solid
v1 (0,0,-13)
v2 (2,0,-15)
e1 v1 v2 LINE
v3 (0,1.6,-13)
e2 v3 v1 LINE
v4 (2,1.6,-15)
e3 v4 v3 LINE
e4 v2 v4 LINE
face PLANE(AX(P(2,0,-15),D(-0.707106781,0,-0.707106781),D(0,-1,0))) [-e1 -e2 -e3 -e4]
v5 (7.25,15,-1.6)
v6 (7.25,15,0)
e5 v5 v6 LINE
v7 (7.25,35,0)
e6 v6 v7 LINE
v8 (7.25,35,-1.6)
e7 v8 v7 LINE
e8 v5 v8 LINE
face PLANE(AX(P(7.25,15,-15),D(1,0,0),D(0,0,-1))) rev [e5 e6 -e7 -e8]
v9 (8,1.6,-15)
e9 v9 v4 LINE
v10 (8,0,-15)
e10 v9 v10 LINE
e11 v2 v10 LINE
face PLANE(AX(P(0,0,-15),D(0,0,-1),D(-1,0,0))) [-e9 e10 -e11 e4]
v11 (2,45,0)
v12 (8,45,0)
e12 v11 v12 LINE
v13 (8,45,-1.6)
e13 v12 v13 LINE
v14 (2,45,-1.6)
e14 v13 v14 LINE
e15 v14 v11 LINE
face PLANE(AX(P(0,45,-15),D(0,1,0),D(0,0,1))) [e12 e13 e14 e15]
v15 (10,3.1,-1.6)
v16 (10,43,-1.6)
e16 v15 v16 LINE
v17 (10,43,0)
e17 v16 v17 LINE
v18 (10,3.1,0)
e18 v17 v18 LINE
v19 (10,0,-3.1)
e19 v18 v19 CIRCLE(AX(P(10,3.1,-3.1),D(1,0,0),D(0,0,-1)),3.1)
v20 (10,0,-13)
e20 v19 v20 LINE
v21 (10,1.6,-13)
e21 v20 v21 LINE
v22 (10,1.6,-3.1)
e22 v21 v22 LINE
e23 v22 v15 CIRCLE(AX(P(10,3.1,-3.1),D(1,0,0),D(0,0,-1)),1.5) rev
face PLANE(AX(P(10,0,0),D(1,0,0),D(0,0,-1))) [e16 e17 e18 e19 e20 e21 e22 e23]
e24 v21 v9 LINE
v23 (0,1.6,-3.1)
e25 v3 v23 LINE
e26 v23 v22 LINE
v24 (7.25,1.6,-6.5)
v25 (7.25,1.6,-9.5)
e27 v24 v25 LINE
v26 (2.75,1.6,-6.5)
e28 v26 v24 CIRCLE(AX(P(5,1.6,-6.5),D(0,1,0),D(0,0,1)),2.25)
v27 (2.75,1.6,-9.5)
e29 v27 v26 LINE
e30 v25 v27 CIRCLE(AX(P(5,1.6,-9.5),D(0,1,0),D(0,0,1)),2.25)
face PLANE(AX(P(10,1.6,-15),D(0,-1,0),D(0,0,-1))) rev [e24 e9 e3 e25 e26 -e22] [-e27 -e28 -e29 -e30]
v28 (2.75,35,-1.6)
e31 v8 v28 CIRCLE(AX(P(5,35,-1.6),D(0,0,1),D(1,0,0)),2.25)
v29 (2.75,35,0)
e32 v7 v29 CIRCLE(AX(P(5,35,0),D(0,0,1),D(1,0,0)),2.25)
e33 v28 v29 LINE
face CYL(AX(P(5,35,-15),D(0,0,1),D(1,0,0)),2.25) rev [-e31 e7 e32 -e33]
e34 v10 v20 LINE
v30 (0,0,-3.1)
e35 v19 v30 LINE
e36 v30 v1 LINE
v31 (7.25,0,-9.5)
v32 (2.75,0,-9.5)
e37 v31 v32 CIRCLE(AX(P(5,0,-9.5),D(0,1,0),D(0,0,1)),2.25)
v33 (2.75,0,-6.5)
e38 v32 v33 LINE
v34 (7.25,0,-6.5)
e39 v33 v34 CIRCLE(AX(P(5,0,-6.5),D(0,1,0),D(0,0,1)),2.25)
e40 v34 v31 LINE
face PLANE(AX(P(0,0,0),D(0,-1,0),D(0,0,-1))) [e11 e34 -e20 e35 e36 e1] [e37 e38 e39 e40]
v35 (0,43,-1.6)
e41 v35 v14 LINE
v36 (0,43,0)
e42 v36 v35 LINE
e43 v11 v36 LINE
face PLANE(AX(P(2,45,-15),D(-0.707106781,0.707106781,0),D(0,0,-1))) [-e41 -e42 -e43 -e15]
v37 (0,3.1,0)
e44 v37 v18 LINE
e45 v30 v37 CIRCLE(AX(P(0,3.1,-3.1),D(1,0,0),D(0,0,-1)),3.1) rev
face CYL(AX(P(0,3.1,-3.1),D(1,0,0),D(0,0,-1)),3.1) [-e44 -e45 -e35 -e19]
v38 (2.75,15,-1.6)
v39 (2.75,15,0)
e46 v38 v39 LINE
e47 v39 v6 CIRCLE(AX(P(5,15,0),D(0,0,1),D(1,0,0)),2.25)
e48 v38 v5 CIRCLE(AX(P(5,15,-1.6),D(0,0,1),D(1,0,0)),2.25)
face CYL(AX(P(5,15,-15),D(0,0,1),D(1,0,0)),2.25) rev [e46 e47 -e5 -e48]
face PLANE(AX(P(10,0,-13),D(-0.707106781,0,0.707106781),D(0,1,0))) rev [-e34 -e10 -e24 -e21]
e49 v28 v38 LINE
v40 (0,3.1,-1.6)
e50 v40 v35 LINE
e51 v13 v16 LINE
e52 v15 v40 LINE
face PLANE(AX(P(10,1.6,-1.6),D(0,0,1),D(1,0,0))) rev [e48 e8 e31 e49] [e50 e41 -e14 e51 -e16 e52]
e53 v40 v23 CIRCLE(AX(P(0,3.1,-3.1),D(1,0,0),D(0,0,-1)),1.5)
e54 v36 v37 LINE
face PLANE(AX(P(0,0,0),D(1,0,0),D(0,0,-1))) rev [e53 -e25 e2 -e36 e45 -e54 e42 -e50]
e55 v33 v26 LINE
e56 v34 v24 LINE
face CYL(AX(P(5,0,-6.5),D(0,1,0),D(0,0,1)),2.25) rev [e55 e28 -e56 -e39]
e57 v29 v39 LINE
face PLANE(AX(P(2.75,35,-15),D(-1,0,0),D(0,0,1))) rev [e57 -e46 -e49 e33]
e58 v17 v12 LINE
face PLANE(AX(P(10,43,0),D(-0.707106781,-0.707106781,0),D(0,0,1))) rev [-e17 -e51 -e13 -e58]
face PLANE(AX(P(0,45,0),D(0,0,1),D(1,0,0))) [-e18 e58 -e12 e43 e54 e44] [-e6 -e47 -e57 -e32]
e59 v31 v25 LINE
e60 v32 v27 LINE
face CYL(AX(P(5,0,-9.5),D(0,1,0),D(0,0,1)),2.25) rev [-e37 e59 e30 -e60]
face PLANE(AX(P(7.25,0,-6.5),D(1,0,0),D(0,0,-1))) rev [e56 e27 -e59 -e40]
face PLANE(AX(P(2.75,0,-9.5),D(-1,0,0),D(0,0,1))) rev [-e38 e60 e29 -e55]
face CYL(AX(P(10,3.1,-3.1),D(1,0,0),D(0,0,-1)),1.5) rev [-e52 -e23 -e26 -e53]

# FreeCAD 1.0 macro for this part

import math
import FreeCAD as App
import Part
import Sketcher
from FreeCAD import Vector


def edges_at(feature, points):
    """Names of the edges that pass closest to the given points."""
    edges = feature.Shape.Edges
    near = lambda p: min(range(len(edges)), key=lambda i: edges[i].distToShape(Part.Vertex(*p))[0])
    return sorted({f"Edge{near(p) + 1}" for p in points})

doc = App.newDocument("Part")
params = doc.addObject("Spreadsheet::Sheet", "Params")
for row, (alias, value) in enumerate([
    ("sketch1_width", "45 mm"),
    ("sketch1_height", "15 mm"),
    ("pad1_length", "10 mm"),
    ("sketch2_width", "43.4 mm"),
    ("sketch2_height", "13.4 mm"),
    ("sketch3_height", "3 mm"),
    ("sketch3_radius", "2.25 mm"),
    ("sketch4_height", "20 mm"),
    ("sketch4_radius", "2.25 mm"),
    ("chamfer_size", "2 mm"),
    ("fillet_radius", "1.5 mm"),
    ("fillet2_radius", "3.1 mm"),
], start=1):
    params.set(f"A{row}", alias)
    params.set(f"B{row}", "=" + value)
    params.setAlias(f"B{row}", alias)

body = doc.addObject("PartDesign::Body", "Body")

# Sketch on YZ plane
sketch1 = doc.addObject("Sketcher::SketchObject", "Sketch")
body.addObject(sketch1)
sketch1.AttachmentSupport = (doc.YZ_Plane, [""])
sketch1.MapMode = "FlatFace"
sketch1.AttachmentOffset = App.Placement(Vector(0, 0, 10), App.Rotation())
sketch1.addGeometry(Part.LineSegment(Vector(45, 0, 0), Vector(0, 0, 0)), False)
sketch1.addGeometry(Part.LineSegment(Vector(0, 0, 0), Vector(0, -15, 0)), False)
sketch1.addGeometry(Part.LineSegment(Vector(0, -15, 0), Vector(45, -15, 0)), False)
sketch1.addGeometry(Part.LineSegment(Vector(45, -15, 0), Vector(45, 0, 0)), False)
sketch1.addConstraint(Sketcher.Constraint("Coincident", 0, 2, 1, 1))
sketch1.addConstraint(Sketcher.Constraint("Coincident", 1, 2, 2, 1))
sketch1.addConstraint(Sketcher.Constraint("Coincident", 2, 2, 3, 1))
sketch1.addConstraint(Sketcher.Constraint("Coincident", 3, 2, 0, 1))
sketch1.addConstraint(Sketcher.Constraint("Horizontal", 0))
sketch1.addConstraint(Sketcher.Constraint("Vertical", 1))
sketch1.addConstraint(Sketcher.Constraint("Horizontal", 2))
sketch1.addConstraint(Sketcher.Constraint("Vertical", 3))
sketch1.addConstraint(Sketcher.Constraint("Coincident", 0, 2, -1, 1))
sketch1.addConstraint(Sketcher.Constraint("DistanceX", 0, 2, 0, 1, 45.0))
sketch1.addConstraint(Sketcher.Constraint("DistanceY", 1, 2, 1, 1, 15.0))
sketch1.setExpression("Constraints[9]", "Params.sketch1_width")
sketch1.setExpression("Constraints[10]", "Params.sketch1_height")
pad1 = doc.addObject("PartDesign::Pad", "Pad")
body.addObject(pad1)
pad1.Profile = sketch1
pad1.setExpression("Length", "Params.pad1_length")
pad1.Reversed = True

# Sketch on YZ plane
sketch2 = doc.addObject("Sketcher::SketchObject", "Sketch001")
body.addObject(sketch2)
sketch2.AttachmentSupport = (doc.YZ_Plane, [""])
sketch2.MapMode = "FlatFace"
sketch2.addGeometry(Part.LineSegment(Vector(45, -15, 0), Vector(1.6, -15, 0)), False)
sketch2.addGeometry(Part.LineSegment(Vector(1.6, -15, 0), Vector(1.6, -1.6, 0)), False)
sketch2.addGeometry(Part.LineSegment(Vector(1.6, -1.6, 0), Vector(45, -1.6, 0)), False)
sketch2.addGeometry(Part.LineSegment(Vector(45, -1.6, 0), Vector(45, -15, 0)), False)
sketch2.addConstraint(Sketcher.Constraint("Coincident", 0, 2, 1, 1))
sketch2.addConstraint(Sketcher.Constraint("Coincident", 1, 2, 2, 1))
sketch2.addConstraint(Sketcher.Constraint("Coincident", 2, 2, 3, 1))
sketch2.addConstraint(Sketcher.Constraint("Coincident", 3, 2, 0, 1))
sketch2.addConstraint(Sketcher.Constraint("Horizontal", 0))
sketch2.addConstraint(Sketcher.Constraint("Vertical", 1))
sketch2.addConstraint(Sketcher.Constraint("Horizontal", 2))
sketch2.addConstraint(Sketcher.Constraint("Vertical", 3))
sketch2.addConstraint(Sketcher.Constraint("DistanceX", 0, 2, 0, 1, 43.4))
sketch2.addConstraint(Sketcher.Constraint("DistanceY", 1, 1, 1, 2, 13.4))
sketch2.addConstraint(Sketcher.Constraint("DistanceY", 0, 2, -1, 1, 15.0))
sketch2.addConstraint(Sketcher.Constraint("DistanceX", -1, 1, 2, 2, 45.0))
sketch2.setExpression("Constraints[8]", "Params.sketch2_width")
sketch2.setExpression("Constraints[9]", "Params.sketch2_height")
pocket1 = doc.addObject("PartDesign::Pocket", "Pocket")
body.addObject(pocket1)
pocket1.Profile = sketch2
pocket1.Type = "ThroughAll"
pocket1.Reversed = True

# Sketch on XZ plane
sketch3 = doc.addObject("Sketcher::SketchObject", "Sketch002")
body.addObject(sketch3)
sketch3.AttachmentSupport = (doc.XZ_Plane, [""])
sketch3.MapMode = "FlatFace"
sketch3.AttachmentOffset = App.Placement(Vector(0, 0, -1.6), App.Rotation())
sketch3.addGeometry(Part.LineSegment(Vector(2.75, -9.5, 0), Vector(2.75, -6.5, 0)), False)
sketch3.addGeometry(Part.ArcOfCircle(Part.Circle(Vector(5, -6.5, 0), Vector(0, 0, 1), 2.25), math.radians(0), math.radians(180)), False)
sketch3.addGeometry(Part.LineSegment(Vector(7.25, -6.5, 0), Vector(7.25, -9.5, 0)), False)
sketch3.addGeometry(Part.ArcOfCircle(Part.Circle(Vector(5, -9.5, 0), Vector(0, 0, 1), 2.25), math.radians(180), math.radians(360)), False)
sketch3.addConstraint(Sketcher.Constraint("Tangent", 0, 2, 1, 2))
sketch3.addConstraint(Sketcher.Constraint("Tangent", 1, 1, 2, 1))
sketch3.addConstraint(Sketcher.Constraint("Tangent", 2, 2, 3, 2))
sketch3.addConstraint(Sketcher.Constraint("Tangent", 3, 1, 0, 1))
sketch3.addConstraint(Sketcher.Constraint("Vertical", 0))
sketch3.addConstraint(Sketcher.Constraint("Vertical", 2))
sketch3.addConstraint(Sketcher.Constraint("DistanceY", 0, 1, 0, 2, 3.0))
sketch3.addConstraint(Sketcher.Constraint("Radius", 1, 2.25))
sketch3.addConstraint(Sketcher.Constraint("DistanceX", -1, 1, 1, 3, 5.0))
sketch3.addConstraint(Sketcher.Constraint("DistanceY", 1, 3, -1, 1, 6.5))
sketch3.setExpression("Constraints[6]", "Params.sketch3_height")
sketch3.setExpression("Constraints[7]", "Params.sketch3_radius")
pocket2 = doc.addObject("PartDesign::Pocket", "Pocket001")
body.addObject(pocket2)
pocket2.Profile = sketch3
pocket2.Type = "ThroughAll"
pocket2.Reversed = True

# Sketch on XY plane
sketch4 = doc.addObject("Sketcher::SketchObject", "Sketch003")
body.addObject(sketch4)
sketch4.AttachmentSupport = (doc.XY_Plane, [""])
sketch4.MapMode = "FlatFace"
sketch4.addGeometry(Part.LineSegment(Vector(7.25, 15, 0), Vector(7.25, 35, 0)), False)
sketch4.addGeometry(Part.ArcOfCircle(Part.Circle(Vector(5, 35, 0), Vector(0, 0, 1), 2.25), math.radians(0), math.radians(180)), False)
sketch4.addGeometry(Part.LineSegment(Vector(2.75, 35, 0), Vector(2.75, 15, 0)), False)
sketch4.addGeometry(Part.ArcOfCircle(Part.Circle(Vector(5, 15, 0), Vector(0, 0, 1), 2.25), math.radians(180), math.radians(360)), False)
sketch4.addConstraint(Sketcher.Constraint("Tangent", 0, 2, 1, 1))
sketch4.addConstraint(Sketcher.Constraint("Tangent", 1, 2, 2, 1))
sketch4.addConstraint(Sketcher.Constraint("Tangent", 2, 2, 3, 1))
sketch4.addConstraint(Sketcher.Constraint("Tangent", 3, 2, 0, 1))
sketch4.addConstraint(Sketcher.Constraint("Vertical", 0))
sketch4.addConstraint(Sketcher.Constraint("Vertical", 2))
sketch4.addConstraint(Sketcher.Constraint("DistanceY", 0, 1, 0, 2, 20.0))
sketch4.addConstraint(Sketcher.Constraint("Radius", 1, 2.25))
sketch4.addConstraint(Sketcher.Constraint("DistanceX", -1, 1, 1, 3, 5.0))
sketch4.addConstraint(Sketcher.Constraint("DistanceY", -1, 1, 1, 3, 35.0))
sketch4.setExpression("Constraints[6]", "Params.sketch4_height")
sketch4.setExpression("Constraints[7]", "Params.sketch4_radius")
pocket3 = doc.addObject("PartDesign::Pocket", "Pocket002")
body.addObject(pocket3)
pocket3.Profile = sketch4
pocket3.Type = "ThroughAll"
doc.recompute()

chamfer = doc.addObject("PartDesign::Chamfer", "Chamfer")
body.addObject(chamfer)
chamfer.Base = (pocket3, edges_at(pocket3, [
    (0, 0.8, -15),
    (10, 45, -0.8),
    (0, 45, -0.8),
    (10, 0.8, -15),
]))
chamfer.setExpression("Size", "Params.chamfer_size")
doc.recompute()

fillet = doc.addObject("PartDesign::Fillet", "Fillet")
body.addObject(fillet)
fillet.Base = (chamfer, edges_at(chamfer, [(5, 1.6, -1.6)]))
fillet.setExpression("Radius", "Params.fillet_radius")
doc.recompute()

fillet2 = doc.addObject("PartDesign::Fillet", "Fillet001")
body.addObject(fillet2)
fillet2.Base = (fillet, edges_at(fillet, [(5, 0, 0)]))
fillet2.setExpression("Radius", "Params.fillet2_radius")

doc.recompute()
